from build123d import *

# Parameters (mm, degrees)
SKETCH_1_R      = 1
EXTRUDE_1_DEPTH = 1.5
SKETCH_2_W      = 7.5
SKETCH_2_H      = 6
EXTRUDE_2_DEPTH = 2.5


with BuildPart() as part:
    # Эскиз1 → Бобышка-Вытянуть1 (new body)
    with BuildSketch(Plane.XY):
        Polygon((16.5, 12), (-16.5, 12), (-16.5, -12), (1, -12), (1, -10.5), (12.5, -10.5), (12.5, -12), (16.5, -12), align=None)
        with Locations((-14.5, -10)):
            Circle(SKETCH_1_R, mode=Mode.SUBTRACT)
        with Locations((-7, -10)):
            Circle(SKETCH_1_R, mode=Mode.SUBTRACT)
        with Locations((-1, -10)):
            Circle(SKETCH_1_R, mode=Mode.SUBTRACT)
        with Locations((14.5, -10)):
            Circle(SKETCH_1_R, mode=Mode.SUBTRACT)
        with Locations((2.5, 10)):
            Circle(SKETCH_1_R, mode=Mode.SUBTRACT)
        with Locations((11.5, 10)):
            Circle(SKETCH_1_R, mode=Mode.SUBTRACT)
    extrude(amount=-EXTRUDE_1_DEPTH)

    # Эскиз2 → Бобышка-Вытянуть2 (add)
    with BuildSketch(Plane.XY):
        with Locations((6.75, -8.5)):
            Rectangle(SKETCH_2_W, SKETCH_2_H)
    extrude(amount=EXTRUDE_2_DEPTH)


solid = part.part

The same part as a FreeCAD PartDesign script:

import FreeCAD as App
import Part
import Sketcher
from FreeCAD import Vector
Q = App.Units.Quantity


def add_polygon(sketch, points):
    """Adds a closed chain of lines whose ends are joined by coincident constraints."""
    first, n = sketch.GeometryCount, len(points)
    for a, b in zip(points, points[1:] + points[:1]):
        sketch.addGeometry(Part.LineSegment(App.Vector(*a, 0), App.Vector(*b, 0)), False)
    for i in range(n):
        sketch.addConstraint(Sketcher.Constraint("Coincident", first + i, 2, first + (i + 1) % n, 1))

doc = App.newDocument("Part")
body = doc.addObject("PartDesign::Body", "Body")

# Sketch on XY plane
sketch1 = body.newObject("Sketcher::SketchObject", "Sketch")
sketch1.AttachmentSupport = (doc.getObject("XY_Plane"), [""])
sketch1.MapMode = "FlatFace"
add_polygon(sketch1, [(16.5, 12), (-16.5, 12), (-16.5, -12), (1, -12), (1, -10.5), (12.5, -10.5), (12.5, -12), (16.5, -12)])  # lines 0-7
sketch1.addGeometry(Part.Circle(Vector(-14.5, -10, 0), Vector(0, 0, 1), 1), False)  # 8
sketch1.addGeometry(Part.Circle(Vector(-7, -10, 0), Vector(0, 0, 1), 1), False)  # 9
sketch1.addGeometry(Part.Circle(Vector(-1, -10, 0), Vector(0, 0, 1), 1), False)  # 10
sketch1.addGeometry(Part.Circle(Vector(14.5, -10, 0), Vector(0, 0, 1), 1), False)  # 11
sketch1.addGeometry(Part.Circle(Vector(2.5, 10, 0), Vector(0, 0, 1), 1), False)  # 12
sketch1.addGeometry(Part.Circle(Vector(11.5, 10, 0), Vector(0, 0, 1), 1), False)  # 13
sketch1.addConstraint([
    Sketcher.Constraint("Horizontal", 0),
    Sketcher.Constraint("Vertical", 1),
    Sketcher.Constraint("Horizontal", 2),
    Sketcher.Constraint("Vertical", 3),
    Sketcher.Constraint("Horizontal", 4),
    Sketcher.Constraint("Vertical", 5),
    Sketcher.Constraint("Horizontal", 6),
    Sketcher.Constraint("Vertical", 7),
    Sketcher.Constraint("Equal", 8, 9),
    Sketcher.Constraint("Equal", 9, 10),
    Sketcher.Constraint("Equal", 10, 11),
    Sketcher.Constraint("Equal", 11, 12),
    Sketcher.Constraint("Equal", 12, 13),
    Sketcher.Constraint("Symmetric", 0, 2, 6, 2, -1, 1),
    Sketcher.Constraint("Symmetric", 8, 3, 11, 3, -2),
    Sketcher.Constraint("Horizontal", 8, 3, 9, 3),
    Sketcher.Constraint("Horizontal", 9, 3, 10, 3),
    Sketcher.Constraint("Horizontal", 12, 3, 13, 3),
    Sketcher.Constraint("Horizontal", 2, 2, 5, 2),
    Sketcher.Constraint("Diameter", 8, Q("2 mm")),
    Sketcher.Constraint("DistanceX", 0, 2, 0, 1, Q("33 mm")),
    Sketcher.Constraint("DistanceX", 6, 1, 6, 2, Q("4 mm")),
    Sketcher.Constraint("DistanceY", 1, 2, 1, 1, Q("24 mm")),
    Sketcher.Constraint("DistanceX", 2, 1, 2, 2, Q("17.5 mm")),
    Sketcher.Constraint("DistanceY", 3, 1, 3, 2, Q("1.5 mm")),
    Sketcher.Constraint("DistanceY", 8, 3, -1, 1, Q("10 mm")),
    Sketcher.Constraint("DistanceX", 9, 3, -1, 1, Q("7 mm")),
    Sketcher.Constraint("DistanceX", 10, 3, -1, 1, Q("1 mm")),
    Sketcher.Constraint("DistanceY", -1, 1, 12, 3, Q("10 mm")),
    Sketcher.Constraint("DistanceX", 8, 3, 11, 3, Q("29 mm")),
    Sketcher.Constraint("DistanceX", 12, 3, 11, 3, Q("12 mm")),
    Sketcher.Constraint("DistanceX", 12, 3, 13, 3, Q("9 mm")),
])
pad1 = body.newObject("PartDesign::Pad", "Pad")
pad1.Profile = sketch1
pad1.Length = 1.5
pad1.Reversed = True

# Sketch on XY plane
sketch2 = body.newObject("Sketcher::SketchObject", "Sketch001")
sketch2.AttachmentSupport = (doc.getObject("XY_Plane"), [""])
sketch2.MapMode = "FlatFace"
add_polygon(sketch2, [(3, -6), (3, -12), (10, -12), (10, -6)])  # lines 0-3
sketch2.addConstraint([
    Sketcher.Constraint("Vertical", 0),
    Sketcher.Constraint("Horizontal", 1),
    Sketcher.Constraint("Vertical", 2),
    Sketcher.Constraint("Horizontal", 3),
    Sketcher.Constraint("DistanceY", 0, 2, 0, 1, Q("6 mm")),
    Sketcher.Constraint("DistanceX", 1, 1, 1, 2, Q("7.5 mm")),
    Sketcher.Constraint("DistanceX", -1, 1, 0, 2, Q("3 mm")),
    Sketcher.Constraint("DistanceY", 0, 2, -1, 1, Q("11.5 mm")),
])
pad2 = body.newObject("PartDesign::Pad", "Pad001")
pad2.Profile = sketch2
pad2.Length = 2.5

doc.recompute()
